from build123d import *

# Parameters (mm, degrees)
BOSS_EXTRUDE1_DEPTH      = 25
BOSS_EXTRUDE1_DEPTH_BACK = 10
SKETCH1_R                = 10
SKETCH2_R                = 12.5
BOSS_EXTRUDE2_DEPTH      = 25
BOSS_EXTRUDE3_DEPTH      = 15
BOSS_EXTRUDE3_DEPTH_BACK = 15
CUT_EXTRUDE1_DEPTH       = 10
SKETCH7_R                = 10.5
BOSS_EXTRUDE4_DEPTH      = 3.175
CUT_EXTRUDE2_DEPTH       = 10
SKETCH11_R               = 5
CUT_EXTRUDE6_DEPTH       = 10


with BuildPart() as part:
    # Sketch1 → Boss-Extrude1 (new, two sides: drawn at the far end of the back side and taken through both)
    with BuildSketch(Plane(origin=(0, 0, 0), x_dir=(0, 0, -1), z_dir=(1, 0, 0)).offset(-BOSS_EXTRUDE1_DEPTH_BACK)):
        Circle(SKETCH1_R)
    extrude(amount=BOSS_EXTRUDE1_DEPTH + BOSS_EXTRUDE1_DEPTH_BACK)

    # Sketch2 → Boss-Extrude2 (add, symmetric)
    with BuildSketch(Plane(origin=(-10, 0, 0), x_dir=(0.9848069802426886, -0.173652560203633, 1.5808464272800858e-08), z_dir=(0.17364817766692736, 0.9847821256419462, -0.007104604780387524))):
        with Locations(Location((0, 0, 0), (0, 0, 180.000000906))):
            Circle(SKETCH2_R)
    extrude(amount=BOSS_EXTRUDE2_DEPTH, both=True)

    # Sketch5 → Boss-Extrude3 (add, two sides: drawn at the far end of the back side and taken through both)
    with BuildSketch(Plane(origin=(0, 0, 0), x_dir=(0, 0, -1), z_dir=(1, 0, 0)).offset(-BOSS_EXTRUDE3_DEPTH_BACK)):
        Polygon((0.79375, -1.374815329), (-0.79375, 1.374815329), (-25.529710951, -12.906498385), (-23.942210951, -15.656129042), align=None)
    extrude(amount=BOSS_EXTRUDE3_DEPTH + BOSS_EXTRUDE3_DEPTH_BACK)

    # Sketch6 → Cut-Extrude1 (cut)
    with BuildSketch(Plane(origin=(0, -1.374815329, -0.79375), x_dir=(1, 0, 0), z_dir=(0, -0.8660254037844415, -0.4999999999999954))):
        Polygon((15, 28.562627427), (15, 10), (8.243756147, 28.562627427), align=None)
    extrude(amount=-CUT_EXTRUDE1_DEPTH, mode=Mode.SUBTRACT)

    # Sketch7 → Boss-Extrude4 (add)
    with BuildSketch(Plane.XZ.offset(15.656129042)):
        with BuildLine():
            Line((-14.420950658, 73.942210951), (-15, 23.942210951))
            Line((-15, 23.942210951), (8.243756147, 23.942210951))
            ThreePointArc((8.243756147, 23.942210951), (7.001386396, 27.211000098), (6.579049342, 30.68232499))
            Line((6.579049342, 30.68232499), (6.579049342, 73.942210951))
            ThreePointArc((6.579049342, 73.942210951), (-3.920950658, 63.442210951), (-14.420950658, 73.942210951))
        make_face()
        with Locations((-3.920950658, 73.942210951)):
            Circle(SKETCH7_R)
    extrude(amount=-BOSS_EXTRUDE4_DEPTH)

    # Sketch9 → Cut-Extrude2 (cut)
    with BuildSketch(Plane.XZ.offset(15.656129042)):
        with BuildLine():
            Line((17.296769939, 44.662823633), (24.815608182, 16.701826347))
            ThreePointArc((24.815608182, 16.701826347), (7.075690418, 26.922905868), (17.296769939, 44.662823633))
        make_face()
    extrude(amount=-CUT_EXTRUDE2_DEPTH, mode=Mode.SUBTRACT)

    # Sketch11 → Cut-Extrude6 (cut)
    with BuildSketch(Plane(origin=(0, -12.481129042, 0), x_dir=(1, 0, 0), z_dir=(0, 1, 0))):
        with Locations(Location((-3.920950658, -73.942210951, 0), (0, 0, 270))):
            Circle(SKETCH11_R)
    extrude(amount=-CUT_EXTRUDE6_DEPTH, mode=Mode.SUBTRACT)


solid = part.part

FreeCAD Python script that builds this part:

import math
import FreeCAD as App
import Part
import Sketcher

V = App.Vector
Q = App.Units.Quantity


def add_polygon(sketch, points):
    """Adds a closed chain of lines whose ends are joined by coincident constraints."""
    first, n = sketch.GeometryCount, len(points)
    for a, b in zip(points, points[1:] + points[:1]):
        sketch.addGeometry(Part.LineSegment(App.Vector(*a, 0), App.Vector(*b, 0)), False)
    for i in range(n):
        sketch.addConstraint(Sketcher.Constraint("Coincident", first + i, 2, first + (i + 1) % n, 1))

doc = App.newDocument("Part")
params = doc.addObject("Spreadsheet::Sheet", "Params")
for row, (alias, value) in enumerate([
    ("sketch1_diameter", "20 mm"),
    ("pad1_length", "25 mm"),
    ("pad1_length2", "10 mm"),
    ("sketch2_diameter", "25 mm"),
    ("pad2_length", "50 mm"),
    ("pad3_length", "15 mm"),
    ("pad3_length2", "15 mm"),
    ("pocket1_length", "10 mm"),
    ("sketch5_radius", "10.5 mm"),
    ("pad4_length", "3.175 mm"),
    ("pocket2_length", "10 mm"),
    ("sketch7_diameter", "10 mm"),
    ("pocket3_length", "10 mm"),
], start=1):
    params.set(f"A{row}", alias)
    params.set(f"B{row}", "=" + value)
    params.setAlias(f"B{row}", alias)

body = doc.addObject("PartDesign::Body", "Body")

sketch1 = body.newObject("Sketcher::SketchObject", "Sketch")
sketch1.AttachmentSupport = (doc.getObject("YZ_Plane"), [""])
sketch1.MapMode = "FlatFace"
sketch1.addGeometry(Part.Circle(V(0, 0, 0), V(0, 0, 1), 10), False)
sketch1.addConstraint([
    Sketcher.Constraint("Coincident", 0, 3, -1, 1),
    Sketcher.Constraint("Diameter", 0, Q("20 mm")),
])
sketch1.setExpression("Constraints[1]", "Params.sketch1_diameter")
pad1 = body.newObject("PartDesign::Pad", "Pad")
pad1.Profile = sketch1
pad1.Type = "TwoLengths"
pad1.setExpression("Length", "Params.pad1_length")
pad1.setExpression("Length2", "Params.pad1_length2")

sketch2 = body.newObject("Sketcher::SketchObject", "Sketch001")
sketch2.Placement = App.Placement(V(-10, 0, 0), App.Rotation(V(0.98480698, -0.17365256, 0.000000016), V(-0.001233717, -0.006996667, -0.999974762), V(0.173648178, 0.984782126, -0.007104605), "ZXY"))
sketch2.addGeometry(Part.Circle(V(0, 0, 0), V(0, 0, 1), 12), False)
sketch2.addConstraint([
    Sketcher.Constraint("Coincident", 0, 3, -1, 1),
    Sketcher.Constraint("Diameter", 0, Q("25 mm")),
])
sketch2.setExpression("Constraints[1]", "Params.sketch2_diameter")
pad2 = body.newObject("PartDesign::Pad", "Pad001")
pad2.Profile = sketch2
pad2.setExpression("Length", "Params.pad2_length")
pad2.Midplane = True

sketch3 = body.newObject("Sketcher::SketchObject", "Sketch002")
sketch3.AttachmentSupport = (doc.getObject("YZ_Plane"), [""])
sketch3.MapMode = "FlatFace"
add_polygon(sketch3, [(-1.4, -0.8), (1.4, 0.8), (-12.9, 25.5), (-15.7, 23.9)])
sketch3.addConstraint([
    Sketcher.Constraint("Symmetric", 0, 2, 3, 2, -1, 1),
    Sketcher.Constraint("Perpendicular", 0, 1),
    Sketcher.Constraint("Perpendicular", 1, 2),
    Sketcher.Constraint("Perpendicular", 2, 3),
    Sketcher.Constraint("Angle", 0, Q("30 deg")),
    Sketcher.Constraint("Distance", 0, Q("3.175 mm")),
    Sketcher.Constraint("DistanceX", 1, 2, -1, 1, Q("12.906498 mm")),
])
pad3 = body.newObject("PartDesign::Pad", "Pad002")
pad3.Profile = sketch3
pad3.Type = "TwoLengths"
pad3.setExpression("Length", "Params.pad3_length")
pad3.setExpression("Length2", "Params.pad3_length2")

sketch4 = body.newObject("Sketcher::SketchObject", "Sketch003")
sketch4.Placement = App.Placement(V(0, -1.374815, -0.79375), App.Rotation(V(1, 0, 0), V(0, -0.5, 0.866025404), V(0, -0.866025404, -0.5), "ZXY"))
add_polygon(sketch4, [(15, 10), (15, 29), (8, 29)])
sketch4.addConstraint([
    Sketcher.Constraint("Vertical", 0),
    Sketcher.Constraint("Horizontal", 1),
    Sketcher.Constraint("Angle", 2, Q("-70 deg")),
    Sketcher.Constraint("DistanceX", -1, 1, 0, 2, Q("15 mm")),
    Sketcher.Constraint("DistanceY", -1, 1, 2, 2, Q("10 mm")),
    Sketcher.Constraint("DistanceX", 1, 2, 1, 1, Q("6.756244 mm")),
])
pocket1 = body.newObject("PartDesign::Pocket", "Pocket")
pocket1.Profile = sketch4
pocket1.setExpression("Length", "Params.pocket1_length")

sketch5 = body.newObject("Sketcher::SketchObject", "Sketch004")
sketch5.AttachmentSupport = (doc.getObject("XZ_Plane"), [""])
sketch5.MapMode = "FlatFace"
sketch5.AttachmentOffset = App.Placement(V(0, 0, 15.656129), App.Rotation())
sketch5.addGeometry([
    Part.LineSegment(V(-14, 74, 0), V(-15, 24, 0)),
    Part.LineSegment(V(-15, 24, 0), V(8, 24, 0)),
    Part.ArcOfCircle(Part.Circle(V(21, 31, 0), V(0, 0, 1), 14), math.radians(180), math.radians(208)),
    Part.LineSegment(V(7, 31, 0), V(7, 74, 0)),
    Part.ArcOfCircle(Part.Circle(V(-4, 74, 0), V(0, 0, 1), 10), math.radians(0), math.radians(180)),
], False)
sketch5.addConstraint([
    Sketcher.Constraint("Coincident", 0, 2, 1, 1),
    Sketcher.Constraint("Coincident", 1, 2, 2, 2),
    Sketcher.Constraint("Tangent", 2, 1, 3, 1),
    Sketcher.Constraint("Tangent", 3, 2, 4, 1),
    Sketcher.Constraint("Coincident", 4, 2, 0, 1),
    Sketcher.Constraint("Horizontal", 1),
    Sketcher.Constraint("Vertical", 3),
    Sketcher.Constraint("Horizontal", 3, 2, 4, 2),
    Sketcher.Constraint("Radius", 4, Q("10.5 mm")),
    Sketcher.Constraint("DistanceX", 0, 2, -1, 1, Q("15 mm")),
    Sketcher.Constraint("DistanceY", 0, 2, 4, 3, Q("50 mm")),
    Sketcher.Constraint("Radius", 2, Q("14.47714 mm")),
    Sketcher.Constraint("DistanceX", 1, 1, 1, 2, Q("23.243756 mm")),
    Sketcher.Constraint("DistanceY", 3, 1, 3, 2, Q("43.259886 mm")),
    Sketcher.Constraint("DistanceY", -1, 1, 4, 3, Q("73.942211 mm")),
])
sketch5.setExpression("Constraints[8]", "Params.sketch5_radius")
pad4 = body.newObject("PartDesign::Pad", "Pad003")
pad4.Profile = sketch5
pad4.setExpression("Length", "Params.pad4_length")
pad4.Reversed = True

sketch6 = body.newObject("Sketcher::SketchObject", "Sketch005")
sketch6.AttachmentSupport = (doc.getObject("XZ_Plane"), [""])
sketch6.MapMode = "FlatFace"
sketch6.AttachmentOffset = App.Placement(V(0, 0, 15.656129), App.Rotation())
sketch6.addGeometry([
    Part.LineSegment(V(25, 17, 0), V(17, 45, 0)),
    Part.ArcOfCircle(Part.Circle(V(21, 31, 0), V(0, 0, 1), 14), math.radians(105), math.radians(285)),
], False)
sketch6.addConstraint([
    Sketcher.Constraint("Coincident", 0, 1, 1, 2),
    Sketcher.Constraint("Coincident", 1, 1, 0, 2),
    Sketcher.Constraint("Radius", 1, Q("14.47714 mm")),
    Sketcher.Constraint("DistanceY", 0, 1, 1, 3, Q("13.980499 mm")),
    Sketcher.Constraint("DistanceY", 1, 3, 1, 1, Q("13.980499 mm")),
    Sketcher.Constraint("DistanceX", -1, 1, 1, 3, Q("21.056189 mm")),
    Sketcher.Constraint("DistanceY", -1, 1, 1, 3, Q("30.682325 mm")),
])
pocket2 = body.newObject("PartDesign::Pocket", "Pocket001")
pocket2.Profile = sketch6
pocket2.setExpression("Length", "Params.pocket2_length")

sketch7 = body.newObject("Sketcher::SketchObject", "Sketch006")
sketch7.AttachmentSupport = (doc.getObject("XZ_Plane"), [""])
sketch7.MapMode = "FlatFace"
sketch7.AttachmentOffset = App.Placement(V(0, 0, 12.481129), App.Rotation())
sketch7.addGeometry(Part.Circle(V(-4, 74, 0), V(0, 0, 1), 5), False)
sketch7.addConstraint([
    Sketcher.Constraint("Diameter", 0, Q("10 mm")),
    Sketcher.Constraint("DistanceX", 0, 3, -1, 1, Q("3.920951 mm")),
    Sketcher.Constraint("DistanceY", -1, 1, 0, 3, Q("73.942211 mm")),
])
sketch7.setExpression("Constraints[0]", "Params.sketch7_diameter")
pocket3 = body.newObject("PartDesign::Pocket", "Pocket002")
pocket3.Profile = sketch7
pocket3.setExpression("Length", "Params.pocket3_length")
pocket3.Reversed = True

doc.recompute()
